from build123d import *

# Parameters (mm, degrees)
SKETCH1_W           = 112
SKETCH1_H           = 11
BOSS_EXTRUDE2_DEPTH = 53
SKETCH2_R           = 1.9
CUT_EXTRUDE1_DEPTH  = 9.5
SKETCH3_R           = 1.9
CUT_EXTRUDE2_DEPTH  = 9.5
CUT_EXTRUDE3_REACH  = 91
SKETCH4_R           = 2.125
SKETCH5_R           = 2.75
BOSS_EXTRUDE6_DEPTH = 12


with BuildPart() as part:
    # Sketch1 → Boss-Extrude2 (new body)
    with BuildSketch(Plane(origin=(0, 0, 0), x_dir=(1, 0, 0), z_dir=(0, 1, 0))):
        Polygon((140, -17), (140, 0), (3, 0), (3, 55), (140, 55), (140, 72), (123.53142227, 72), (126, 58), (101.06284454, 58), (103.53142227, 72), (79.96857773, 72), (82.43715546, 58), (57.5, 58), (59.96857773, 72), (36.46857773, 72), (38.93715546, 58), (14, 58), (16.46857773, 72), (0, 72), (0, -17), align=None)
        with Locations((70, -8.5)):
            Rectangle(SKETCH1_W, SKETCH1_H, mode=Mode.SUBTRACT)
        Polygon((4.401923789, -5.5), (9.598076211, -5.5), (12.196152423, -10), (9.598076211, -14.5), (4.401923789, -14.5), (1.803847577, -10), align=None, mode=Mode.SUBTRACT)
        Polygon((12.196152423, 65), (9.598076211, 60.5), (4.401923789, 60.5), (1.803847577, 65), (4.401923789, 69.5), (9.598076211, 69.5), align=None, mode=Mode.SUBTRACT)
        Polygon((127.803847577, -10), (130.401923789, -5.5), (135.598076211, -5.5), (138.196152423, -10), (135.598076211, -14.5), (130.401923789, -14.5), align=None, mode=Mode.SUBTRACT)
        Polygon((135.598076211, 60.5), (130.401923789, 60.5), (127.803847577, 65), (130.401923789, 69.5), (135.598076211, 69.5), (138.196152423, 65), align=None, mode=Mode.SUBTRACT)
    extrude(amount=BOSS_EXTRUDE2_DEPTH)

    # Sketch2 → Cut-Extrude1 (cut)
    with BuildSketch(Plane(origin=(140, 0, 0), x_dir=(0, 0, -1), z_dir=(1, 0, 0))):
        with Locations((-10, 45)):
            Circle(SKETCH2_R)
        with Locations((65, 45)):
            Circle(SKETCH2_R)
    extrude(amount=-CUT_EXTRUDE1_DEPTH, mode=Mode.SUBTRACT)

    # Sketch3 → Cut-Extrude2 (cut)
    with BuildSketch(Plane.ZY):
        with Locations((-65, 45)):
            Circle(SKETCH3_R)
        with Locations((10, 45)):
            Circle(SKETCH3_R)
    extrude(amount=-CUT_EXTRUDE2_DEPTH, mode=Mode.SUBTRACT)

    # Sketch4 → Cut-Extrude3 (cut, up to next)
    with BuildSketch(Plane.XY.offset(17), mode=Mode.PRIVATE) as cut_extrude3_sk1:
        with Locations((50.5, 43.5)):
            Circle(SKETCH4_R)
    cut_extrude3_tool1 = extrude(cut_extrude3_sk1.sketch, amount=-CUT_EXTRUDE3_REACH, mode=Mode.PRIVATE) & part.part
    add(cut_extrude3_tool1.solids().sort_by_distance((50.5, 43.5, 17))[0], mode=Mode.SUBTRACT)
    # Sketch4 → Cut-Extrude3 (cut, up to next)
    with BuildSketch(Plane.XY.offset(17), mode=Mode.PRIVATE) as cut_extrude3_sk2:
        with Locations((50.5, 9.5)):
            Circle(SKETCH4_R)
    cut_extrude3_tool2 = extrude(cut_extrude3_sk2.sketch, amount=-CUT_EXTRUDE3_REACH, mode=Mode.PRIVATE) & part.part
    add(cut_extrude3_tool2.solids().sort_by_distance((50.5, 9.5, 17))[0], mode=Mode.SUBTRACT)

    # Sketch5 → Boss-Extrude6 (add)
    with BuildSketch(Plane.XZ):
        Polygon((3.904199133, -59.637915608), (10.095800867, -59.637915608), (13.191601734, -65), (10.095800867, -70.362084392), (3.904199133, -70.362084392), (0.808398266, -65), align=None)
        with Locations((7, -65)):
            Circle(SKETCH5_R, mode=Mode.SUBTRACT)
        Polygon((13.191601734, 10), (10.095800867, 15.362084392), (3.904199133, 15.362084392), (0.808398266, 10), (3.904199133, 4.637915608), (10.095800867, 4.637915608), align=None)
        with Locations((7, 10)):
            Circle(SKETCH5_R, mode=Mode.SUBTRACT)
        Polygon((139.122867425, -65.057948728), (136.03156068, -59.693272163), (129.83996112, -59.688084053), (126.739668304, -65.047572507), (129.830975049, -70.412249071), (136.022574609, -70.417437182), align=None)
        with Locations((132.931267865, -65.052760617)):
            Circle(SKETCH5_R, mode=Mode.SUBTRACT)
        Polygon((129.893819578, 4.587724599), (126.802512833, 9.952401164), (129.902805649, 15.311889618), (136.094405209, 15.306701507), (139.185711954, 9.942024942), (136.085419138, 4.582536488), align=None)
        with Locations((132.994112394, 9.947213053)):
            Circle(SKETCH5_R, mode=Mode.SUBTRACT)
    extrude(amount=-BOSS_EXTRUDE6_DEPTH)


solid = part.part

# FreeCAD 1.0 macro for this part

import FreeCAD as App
import Part
import Sketcher
Q = App.Units.Quantity

doc = App.newDocument("Part")
body = doc.addObject("PartDesign::Body", "Body")

# Sketch on XZ plane
sketch1 = doc.addObject("Sketcher::SketchObject", "Sketch")
body.addObject(sketch1)
sketch1.AttachmentSupport = (doc.XZ_Plane, [""])
sketch1.MapMode = "FlatFace"
sketch1.addGeometry([
    Part.LineSegment(App.Vector(140, 17, 0), App.Vector(140, 0, 0)),  # 0
    Part.LineSegment(App.Vector(140, 0, 0), App.Vector(3, 0, 0)),  # 1
    Part.LineSegment(App.Vector(3, 0, 0), App.Vector(3, -55, 0)),  # 2
    Part.LineSegment(App.Vector(3, -55, 0), App.Vector(140, -55, 0)),  # 3
    Part.LineSegment(App.Vector(140, -55, 0), App.Vector(140, -72, 0)),  # 4
    Part.LineSegment(App.Vector(140, -72, 0), App.Vector(124, -72, 0)),  # 5
    Part.LineSegment(App.Vector(124, -72, 0), App.Vector(126, -58, 0)),  # 6
    Part.LineSegment(App.Vector(126, -58, 0), App.Vector(101, -58, 0)),  # 7
    Part.LineSegment(App.Vector(101, -58, 0), App.Vector(104, -72, 0)),  # 8
    Part.LineSegment(App.Vector(104, -72, 0), App.Vector(80, -72, 0)),  # 9
    Part.LineSegment(App.Vector(80, -72, 0), App.Vector(82, -58, 0)),  # 10
    Part.LineSegment(App.Vector(82, -58, 0), App.Vector(58, -58, 0)),  # 11
    Part.LineSegment(App.Vector(58, -58, 0), App.Vector(60, -72, 0)),  # 12
    Part.LineSegment(App.Vector(60, -72, 0), App.Vector(36, -72, 0)),  # 13
    Part.LineSegment(App.Vector(36, -72, 0), App.Vector(39, -58, 0)),  # 14
    Part.LineSegment(App.Vector(39, -58, 0), App.Vector(14, -58, 0)),  # 15
    Part.LineSegment(App.Vector(14, -58, 0), App.Vector(16, -72, 0)),  # 16
    Part.LineSegment(App.Vector(16, -72, 0), App.Vector(0, -72, 0)),  # 17
    Part.LineSegment(App.Vector(0, -72, 0), App.Vector(0, 17, 0)),  # 18
    Part.LineSegment(App.Vector(0, 17, 0), App.Vector(140, 17, 0)),  # 19
    Part.LineSegment(App.Vector(2, 10, 0), App.Vector(4, 6, 0)),  # 20
    Part.LineSegment(App.Vector(4, 6, 0), App.Vector(10, 6, 0)),  # 21
    Part.LineSegment(App.Vector(10, 6, 0), App.Vector(12, 10, 0)),  # 22
    Part.LineSegment(App.Vector(12, 10, 0), App.Vector(10, 14, 0)),  # 23
    Part.LineSegment(App.Vector(10, 14, 0), App.Vector(4, 14, 0)),  # 24
    Part.LineSegment(App.Vector(4, 14, 0), App.Vector(2, 10, 0)),  # 25
    Part.LineSegment(App.Vector(126, 14, 0), App.Vector(14, 14, 0)),  # 26
    Part.LineSegment(App.Vector(14, 14, 0), App.Vector(14, 3, 0)),  # 27
    Part.LineSegment(App.Vector(14, 3, 0), App.Vector(126, 3, 0)),  # 28
    Part.LineSegment(App.Vector(126, 3, 0), App.Vector(126, 14, 0)),  # 29
    Part.LineSegment(App.Vector(130, 14, 0), App.Vector(128, 10, 0)),  # 30
    Part.LineSegment(App.Vector(128, 10, 0), App.Vector(130, 6, 0)),  # 31
    Part.LineSegment(App.Vector(130, 6, 0), App.Vector(136, 6, 0)),  # 32
    Part.LineSegment(App.Vector(136, 6, 0), App.Vector(138, 10, 0)),  # 33
    Part.LineSegment(App.Vector(138, 10, 0), App.Vector(136, 14, 0)),  # 34
    Part.LineSegment(App.Vector(136, 14, 0), App.Vector(130, 14, 0)),  # 35
    Part.LineSegment(App.Vector(10, -70, 0), App.Vector(12, -65, 0)),  # 36
    Part.LineSegment(App.Vector(12, -65, 0), App.Vector(10, -60, 0)),  # 37
    Part.LineSegment(App.Vector(10, -60, 0), App.Vector(4, -60, 0)),  # 38
    Part.LineSegment(App.Vector(4, -60, 0), App.Vector(2, -65, 0)),  # 39
    Part.LineSegment(App.Vector(2, -65, 0), App.Vector(4, -70, 0)),  # 40
    Part.LineSegment(App.Vector(4, -70, 0), App.Vector(10, -70, 0)),  # 41
    Part.LineSegment(App.Vector(138, -65, 0), App.Vector(136, -60, 0)),  # 42
    Part.LineSegment(App.Vector(136, -60, 0), App.Vector(130, -60, 0)),  # 43
    Part.LineSegment(App.Vector(130, -60, 0), App.Vector(128, -65, 0)),  # 44
    Part.LineSegment(App.Vector(128, -65, 0), App.Vector(130, -70, 0)),  # 45
    Part.LineSegment(App.Vector(130, -70, 0), App.Vector(136, -70, 0)),  # 46
    Part.LineSegment(App.Vector(136, -70, 0), App.Vector(138, -65, 0)),  # 47
], False)
sketch1.addConstraint([
    Sketcher.Constraint("Coincident", 0, 2, 1, 1),
    Sketcher.Constraint("Coincident", 1, 2, 2, 1),
    Sketcher.Constraint("Coincident", 2, 2, 3, 1),
    Sketcher.Constraint("Coincident", 3, 2, 4, 1),
    Sketcher.Constraint("Coincident", 4, 2, 5, 1),
    Sketcher.Constraint("Coincident", 5, 2, 6, 1),
    Sketcher.Constraint("Coincident", 6, 2, 7, 1),
    Sketcher.Constraint("Coincident", 7, 2, 8, 1),
    Sketcher.Constraint("Coincident", 8, 2, 9, 1),
    Sketcher.Constraint("Coincident", 9, 2, 10, 1),
    Sketcher.Constraint("Coincident", 10, 2, 11, 1),
    Sketcher.Constraint("Coincident", 11, 2, 12, 1),
    Sketcher.Constraint("Coincident", 12, 2, 13, 1),
    Sketcher.Constraint("Coincident", 13, 2, 14, 1),
    Sketcher.Constraint("Coincident", 14, 2, 15, 1),
    Sketcher.Constraint("Coincident", 15, 2, 16, 1),
    Sketcher.Constraint("Coincident", 16, 2, 17, 1),
    Sketcher.Constraint("Coincident", 17, 2, 18, 1),
    Sketcher.Constraint("Coincident", 18, 2, 19, 1),
    Sketcher.Constraint("Coincident", 19, 2, 0, 1),
    Sketcher.Constraint("Coincident", 20, 2, 21, 1),
    Sketcher.Constraint("Coincident", 21, 2, 22, 1),
    Sketcher.Constraint("Coincident", 22, 2, 23, 1),
    Sketcher.Constraint("Coincident", 23, 2, 24, 1),
    Sketcher.Constraint("Coincident", 24, 2, 25, 1),
    Sketcher.Constraint("Coincident", 25, 2, 20, 1),
    Sketcher.Constraint("Coincident", 26, 2, 27, 1),
    Sketcher.Constraint("Coincident", 27, 2, 28, 1),
    Sketcher.Constraint("Coincident", 28, 2, 29, 1),
    Sketcher.Constraint("Coincident", 29, 2, 26, 1),
    Sketcher.Constraint("Coincident", 30, 2, 31, 1),
    Sketcher.Constraint("Coincident", 31, 2, 32, 1),
    Sketcher.Constraint("Coincident", 32, 2, 33, 1),
    Sketcher.Constraint("Coincident", 33, 2, 34, 1),
    Sketcher.Constraint("Coincident", 34, 2, 35, 1),
    Sketcher.Constraint("Coincident", 35, 2, 30, 1),
    Sketcher.Constraint("Coincident", 36, 2, 37, 1),
    Sketcher.Constraint("Coincident", 37, 2, 38, 1),
    Sketcher.Constraint("Coincident", 38, 2, 39, 1),
    Sketcher.Constraint("Coincident", 39, 2, 40, 1),
    Sketcher.Constraint("Coincident", 40, 2, 41, 1),
    Sketcher.Constraint("Coincident", 41, 2, 36, 1),
    Sketcher.Constraint("Coincident", 42, 2, 43, 1),
    Sketcher.Constraint("Coincident", 43, 2, 44, 1),
    Sketcher.Constraint("Coincident", 44, 2, 45, 1),
    Sketcher.Constraint("Coincident", 45, 2, 46, 1),
    Sketcher.Constraint("Coincident", 46, 2, 47, 1),
    Sketcher.Constraint("Coincident", 47, 2, 42, 1),
    Sketcher.Constraint("Vertical", 0),
    Sketcher.Constraint("Horizontal", 1),
    Sketcher.Constraint("Vertical", 2),
    Sketcher.Constraint("Horizontal", 3),
    Sketcher.Constraint("Vertical", 4),
    Sketcher.Constraint("Horizontal", 5),
    Sketcher.Constraint("Horizontal", 7),
    Sketcher.Constraint("Horizontal", 9),
    Sketcher.Constraint("Horizontal", 11),
    Sketcher.Constraint("Horizontal", 13),
    Sketcher.Constraint("Horizontal", 15),
    Sketcher.Constraint("Horizontal", 17),
    Sketcher.Constraint("Vertical", 18),
    Sketcher.Constraint("Horizontal", 19),
    Sketcher.Constraint("Horizontal", 21),
    Sketcher.Constraint("Horizontal", 24),
    Sketcher.Constraint("Horizontal", 26),
    Sketcher.Constraint("Vertical", 27),
    Sketcher.Constraint("Horizontal", 28),
    Sketcher.Constraint("Vertical", 29),
    Sketcher.Constraint("Horizontal", 32),
    Sketcher.Constraint("Horizontal", 35),
    Sketcher.Constraint("Horizontal", 38),
    Sketcher.Constraint("Horizontal", 41),
    Sketcher.Constraint("Horizontal", 43),
    Sketcher.Constraint("Horizontal", 46),
    Sketcher.Constraint("PointOnObject", 0, 2, -1),
    Sketcher.Constraint("PointOnObject", 17, 2, -2),
    Sketcher.Constraint("Parallel", 6, 10),
    Sketcher.Constraint("Parallel", 8, 12),
    Sketcher.Constraint("Parallel", 10, 14),
    Sketcher.Constraint("Parallel", 12, 16),
    Sketcher.Constraint("Parallel", 20, 23),
    Sketcher.Constraint("Parallel", 22, 25),
    Sketcher.Constraint("Parallel", 25, 30),
    Sketcher.Constraint("Parallel", 23, 31),
    Sketcher.Constraint("Parallel", 30, 33),
    Sketcher.Constraint("Parallel", 31, 34),
    Sketcher.Constraint("Parallel", 33, 36),
    Sketcher.Constraint("Parallel", 34, 37),
    Sketcher.Constraint("Parallel", 36, 39),
    Sketcher.Constraint("Parallel", 37, 40),
    Sketcher.Constraint("Parallel", 40, 42),
    Sketcher.Constraint("Parallel", 39, 44),
    Sketcher.Constraint("Parallel", 42, 45),
    Sketcher.Constraint("Parallel", 44, 47),
    Sketcher.Constraint("Horizontal", 5, 2, 8, 2),
    Sketcher.Constraint("Horizontal", 7, 2, 10, 2),
    Sketcher.Constraint("Horizontal", 9, 2, 12, 2),
    Sketcher.Constraint("Horizontal", 11, 2, 14, 2),
    Sketcher.Constraint("Horizontal", 13, 2, 16, 2),
    Sketcher.Constraint("Horizontal", 22, 2, 25, 2),
    Sketcher.Constraint("Horizontal", 25, 2, 30, 2),
    Sketcher.Constraint("Horizontal", 21, 2, 31, 2),
    Sketcher.Constraint("Horizontal", 30, 2, 33, 2),
    Sketcher.Constraint("Horizontal", 24, 2, 34, 2),
    Sketcher.Constraint("Horizontal", 36, 2, 39, 2),
    Sketcher.Constraint("Horizontal", 38, 2, 42, 2),
    Sketcher.Constraint("Horizontal", 39, 2, 44, 2),
    Sketcher.Constraint("Horizontal", 41, 2, 45, 2),
    Sketcher.Constraint("Horizontal", 44, 2, 47, 2),
    Sketcher.Constraint("Vertical", 0, 2, 3, 2),
    Sketcher.Constraint("Vertical", 21, 2, 23, 2),
    Sketcher.Constraint("Vertical", 20, 2, 24, 2),
    Sketcher.Constraint("Vertical", 15, 2, 26, 2),
    Sketcher.Constraint("Vertical", 6, 2, 28, 2),
    Sketcher.Constraint("Vertical", 22, 2, 36, 2),
    Sketcher.Constraint("Vertical", 23, 2, 37, 2),
    Sketcher.Constraint("Vertical", 24, 2, 38, 2),
    Sketcher.Constraint("Vertical", 38, 2, 40, 2),
    Sketcher.Constraint("Vertical", 34, 2, 42, 2),
    Sketcher.Constraint("Vertical", 35, 2, 43, 2),
    Sketcher.Constraint("Equal", 7, 11),
    Sketcher.Constraint("Equal", 11, 15),
    Sketcher.Constraint("Equal", 5, 17),
    Sketcher.Constraint("Equal", 24, 32),
    Sketcher.Constraint("Equal", 0, 4),
    Sketcher.Constraint("Equal", 6, 8),
    Sketcher.Constraint("DistanceX", 1, 2, 1, 1, 137.0),
    Sketcher.Constraint("DistanceX", 19, 1, 19, 2, 140.0),
    Sketcher.Constraint("DistanceX", 26, 2, 26, 1, 112.0),
    Sketcher.Constraint("DistanceY", 0, 2, 0, 1, 17.0),
    Sketcher.Constraint("DistanceY", 2, 2, 2, 1, 55.0),
    Sketcher.Constraint("DistanceY", 27, 2, 27, 1, 11.0),
    Sketcher.Constraint("Angle", 6, Q("80 deg")),
    Sketcher.Constraint("Angle", 20, Q("-60 deg")),
    Sketcher.Constraint("DistanceX", 13, 2, 13, 1, 23.5),
    Sketcher.Constraint("DistanceY", 6, 2, -1, 1, 58.0),
    Sketcher.Constraint("DistanceY", -1, 1, 22, 2, 10.0),
    Sketcher.Constraint("DistanceY", -1, 1, 26, 2, 14.0),
    Sketcher.Constraint("DistanceY", 36, 2, -1, 1, 65.0),
    Sketcher.Constraint("DistanceX", 8, 2, 5, 2, 20.0),
    Sketcher.Constraint("DistanceY", 21, 2, 23, 2, 9.0),
    Sketcher.Constraint("DistanceX", 37, 2, 16, 2, 6.870502),
    Sketcher.Constraint("DistanceX", 5, 2, 43, 2, 6.870502),
    Sketcher.Constraint("DistanceX", 21, 1, 21, 2, 5.196152),
])
pad1 = doc.addObject("PartDesign::Pad", "Pad")
body.addObject(pad1)
pad1.Profile = sketch1
pad1.Length = 53
pad1.Reversed = True

# Sketch on YZ plane
sketch2 = doc.addObject("Sketcher::SketchObject", "Sketch001")
body.addObject(sketch2)
sketch2.AttachmentSupport = (doc.YZ_Plane, [""])
sketch2.MapMode = "FlatFace"
sketch2.AttachmentOffset = App.Placement(App.Vector(0, 0, 140), App.Rotation())
sketch2.addGeometry([
    Part.Circle(App.Vector(45, 10, 0), App.Vector(0, 0, 1), 1.9),
    Part.Circle(App.Vector(45, -65, 0), App.Vector(0, 0, 1), 1.9),
], False)
sketch2.addConstraint([
    Sketcher.Constraint("Equal", 0, 1),
    Sketcher.Constraint("Vertical", 0, 3, 1, 3),
    Sketcher.Constraint("Diameter", 0, 3.8),
    Sketcher.Constraint("DistanceX", -1, 1, 0, 3, 45.0),
    Sketcher.Constraint("DistanceY", -1, 1, 0, 3, 10.0),
    Sketcher.Constraint("DistanceY", 1, 3, -1, 1, 65.0),
])
pocket1 = doc.addObject("PartDesign::Pocket", "Pocket")
body.addObject(pocket1)
pocket1.Profile = sketch2
pocket1.Length = 9.5

# Sketch on YZ plane
sketch3 = doc.addObject("Sketcher::SketchObject", "Sketch002")
body.addObject(sketch3)
sketch3.AttachmentSupport = (doc.YZ_Plane, [""])
sketch3.MapMode = "FlatFace"
sketch3.addGeometry([
    Part.Circle(App.Vector(45, -65, 0), App.Vector(0, 0, 1), 1.9),
    Part.Circle(App.Vector(45, 10, 0), App.Vector(0, 0, 1), 1.9),
], False)
sketch3.addConstraint([
    Sketcher.Constraint("Equal", 0, 1),
    Sketcher.Constraint("Vertical", 0, 3, 1, 3),
    Sketcher.Constraint("Diameter", 0, 3.8),
    Sketcher.Constraint("DistanceX", -1, 1, 0, 3, 45.0),
    Sketcher.Constraint("DistanceY", 0, 3, -1, 1, 65.0),
    Sketcher.Constraint("DistanceY", -1, 1, 1, 3, 10.0),
])
pocket2 = doc.addObject("PartDesign::Pocket", "Pocket001")
body.addObject(pocket2)
pocket2.Profile = sketch3
pocket2.Length = 9.5
pocket2.Reversed = True

# Sketch on XY plane
sketch4 = doc.addObject("Sketcher::SketchObject", "Sketch003")
body.addObject(sketch4)
sketch4.AttachmentSupport = (doc.XY_Plane, [""])
sketch4.MapMode = "FlatFace"
sketch4.AttachmentOffset = App.Placement(App.Vector(0, 0, 17), App.Rotation())
sketch4.addGeometry(Part.Circle(App.Vector(50.5, 43.5, 0), App.Vector(0, 0, 1), 2.1), False)
sketch4.addConstraint([
    Sketcher.Constraint("Diameter", 0, 4.25),
    Sketcher.Constraint("DistanceX", -1, 1, 0, 3, 50.5),
    Sketcher.Constraint("DistanceY", -1, 1, 0, 3, 43.5),
])
pocket3 = doc.addObject("PartDesign::Pocket", "Pocket002")
body.addObject(pocket3)
pocket3.Profile = sketch4
pocket3.Type = "UpToFirst"

# Sketch on XY plane
sketch5 = doc.addObject("Sketcher::SketchObject", "Sketch004")
body.addObject(sketch5)
sketch5.AttachmentSupport = (doc.XY_Plane, [""])
sketch5.MapMode = "FlatFace"
sketch5.AttachmentOffset = App.Placement(App.Vector(0, 0, 17), App.Rotation())
sketch5.addGeometry(Part.Circle(App.Vector(50.5, 9.5, 0), App.Vector(0, 0, 1), 2.1), False)
sketch5.addConstraint([
    Sketcher.Constraint("Diameter", 0, 4.25),
    Sketcher.Constraint("DistanceX", -1, 1, 0, 3, 50.5),
    Sketcher.Constraint("DistanceY", -1, 1, 0, 3, 9.5),
])
pocket4 = doc.addObject("PartDesign::Pocket", "Pocket003")
body.addObject(pocket4)
pocket4.Profile = sketch5
pocket4.Type = "UpToFirst"

# Sketch on XZ plane
sketch6 = doc.addObject("Sketcher::SketchObject", "Sketch005")
body.addObject(sketch6)
sketch6.AttachmentSupport = (doc.XZ_Plane, [""])
sketch6.MapMode = "FlatFace"
sketch6.addGeometry([
    Part.LineSegment(App.Vector(10.1, -59.6, 0), App.Vector(3.9, -59.6, 0)),  # 0
    Part.LineSegment(App.Vector(3.9, -59.6, 0), App.Vector(0.8, -65, 0)),  # 1
    Part.LineSegment(App.Vector(0.8, -65, 0), App.Vector(3.9, -70.4, 0)),  # 2
    Part.LineSegment(App.Vector(3.9, -70.4, 0), App.Vector(10.1, -70.4, 0)),  # 3
    Part.LineSegment(App.Vector(10.1, -70.4, 0), App.Vector(13.2, -65, 0)),  # 4
    Part.LineSegment(App.Vector(13.2, -65, 0), App.Vector(10.1, -59.6, 0)),  # 5
    Part.Circle(App.Vector(7, -65, 0), App.Vector(0, 0, 1), 2.8),  # 6
    Part.LineSegment(App.Vector(13.2, 10, 0), App.Vector(10.1, 15.4, 0)),  # 7
    Part.LineSegment(App.Vector(10.1, 15.4, 0), App.Vector(3.9, 15.4, 0)),  # 8
    Part.LineSegment(App.Vector(3.9, 15.4, 0), App.Vector(0.8, 10, 0)),  # 9
    Part.LineSegment(App.Vector(0.8, 10, 0), App.Vector(3.9, 4.6, 0)),  # 10
    Part.LineSegment(App.Vector(3.9, 4.6, 0), App.Vector(10.1, 4.6, 0)),  # 11
    Part.LineSegment(App.Vector(10.1, 4.6, 0), App.Vector(13.2, 10, 0)),  # 12
    Part.Circle(App.Vector(7, 10, 0), App.Vector(0, 0, 1), 2.8),  # 13
    Part.LineSegment(App.Vector(139.1, -65.1, 0), App.Vector(136, -59.7, 0)),  # 14
    Part.LineSegment(App.Vector(136, -59.7, 0), App.Vector(129.8, -59.7, 0)),  # 15
    Part.LineSegment(App.Vector(129.8, -59.7, 0), App.Vector(126.7, -65, 0)),  # 16
    Part.LineSegment(App.Vector(126.7, -65, 0), App.Vector(129.8, -70.4, 0)),  # 17
    Part.LineSegment(App.Vector(129.8, -70.4, 0), App.Vector(136, -70.4, 0)),  # 18
    Part.LineSegment(App.Vector(136, -70.4, 0), App.Vector(139.1, -65.1, 0)),  # 19
    Part.Circle(App.Vector(132.9, -65.1, 0), App.Vector(0, 0, 1), 2.8),  # 20
    Part.LineSegment(App.Vector(126.8, 10, 0), App.Vector(129.9, 4.6, 0)),  # 21
    Part.LineSegment(App.Vector(129.9, 4.6, 0), App.Vector(136.1, 4.6, 0)),  # 22
    Part.LineSegment(App.Vector(136.1, 4.6, 0), App.Vector(139.2, 9.9, 0)),  # 23
    Part.LineSegment(App.Vector(139.2, 9.9, 0), App.Vector(136.1, 15.3, 0)),  # 24
    Part.LineSegment(App.Vector(136.1, 15.3, 0), App.Vector(129.9, 15.3, 0)),  # 25
    Part.LineSegment(App.Vector(129.9, 15.3, 0), App.Vector(126.8, 10, 0)),  # 26
    Part.Circle(App.Vector(133, 9.9, 0), App.Vector(0, 0, 1), 2.8),  # 27
], False)
sketch6.addConstraint([
    Sketcher.Constraint("Coincident", 0, 2, 1, 1),
    Sketcher.Constraint("Coincident", 1, 2, 2, 1),
    Sketcher.Constraint("Coincident", 2, 2, 3, 1),
    Sketcher.Constraint("Coincident", 3, 2, 4, 1),
    Sketcher.Constraint("Coincident", 4, 2, 5, 1),
    Sketcher.Constraint("Coincident", 5, 2, 0, 1),
    Sketcher.Constraint("Coincident", 7, 2, 8, 1),
    Sketcher.Constraint("Coincident", 8, 2, 9, 1),
    Sketcher.Constraint("Coincident", 9, 2, 10, 1),
    Sketcher.Constraint("Coincident", 10, 2, 11, 1),
    Sketcher.Constraint("Coincident", 11, 2, 12, 1),
    Sketcher.Constraint("Coincident", 12, 2, 7, 1),
    Sketcher.Constraint("Coincident", 14, 2, 15, 1),
    Sketcher.Constraint("Coincident", 15, 2, 16, 1),
    Sketcher.Constraint("Coincident", 16, 2, 17, 1),
    Sketcher.Constraint("Coincident", 17, 2, 18, 1),
    Sketcher.Constraint("Coincident", 18, 2, 19, 1),
    Sketcher.Constraint("Coincident", 19, 2, 14, 1),
    Sketcher.Constraint("Coincident", 21, 2, 22, 1),
    Sketcher.Constraint("Coincident", 22, 2, 23, 1),
    Sketcher.Constraint("Coincident", 23, 2, 24, 1),
    Sketcher.Constraint("Coincident", 24, 2, 25, 1),
    Sketcher.Constraint("Coincident", 25, 2, 26, 1),
    Sketcher.Constraint("Coincident", 26, 2, 21, 1),
    Sketcher.Constraint("Horizontal", 0),
    Sketcher.Constraint("Horizontal", 3),
    Sketcher.Constraint("Horizontal", 8),
    Sketcher.Constraint("Horizontal", 11),
    Sketcher.Constraint("Equal", 6, 13),
    Sketcher.Constraint("Equal", 13, 20),
    Sketcher.Constraint("Equal", 20, 27),
    Sketcher.Constraint("Parallel", 1, 4),
    Sketcher.Constraint("Parallel", 2, 5),
    Sketcher.Constraint("Parallel", 5, 7),
    Sketcher.Constraint("Parallel", 4, 9),
    Sketcher.Constraint("Parallel", 7, 10),
    Sketcher.Constraint("Parallel", 9, 12),
    Sketcher.Constraint("Parallel", 14, 17),
    Sketcher.Constraint("Parallel", 15, 18),
    Sketcher.Constraint("Parallel", 16, 19),
    Sketcher.Constraint("Parallel", 17, 21),
    Sketcher.Constraint("Parallel", 18, 22),
    Sketcher.Constraint("Parallel", 19, 23),
    Sketcher.Constraint("Parallel", 21, 24),
    Sketcher.Constraint("Parallel", 22, 25),
    Sketcher.Constraint("Parallel", 23, 26),
    Sketcher.Constraint("Horizontal", 6, 3, 1, 2),
    Sketcher.Constraint("Horizontal", 1, 2, 4, 2),
    Sketcher.Constraint("Horizontal", 13, 3, 9, 2),
    Sketcher.Constraint("Horizontal", 9, 2, 12, 2),
    Sketcher.Constraint("Vertical", 6, 3, 13, 3),
    Sketcher.Constraint("Vertical", 0, 2, 2, 2),
    Sketcher.Constraint("Vertical", 3, 2, 5, 2),
    Sketcher.Constraint("Vertical", 5, 2, 7, 2),
    Sketcher.Constraint("Vertical", 2, 2, 8, 2),
    Sketcher.Constraint("Vertical", 1, 2, 9, 2),
    Sketcher.Constraint("Vertical", 8, 2, 10, 2),
    Sketcher.Constraint("Equal", 12, 14),
    Sketcher.Constraint("Equal", 14, 15),
    Sketcher.Constraint("Equal", 15, 16),
    Sketcher.Constraint("Equal", 16, 17),
    Sketcher.Constraint("Equal", 19, 21),
    Sketcher.Constraint("Equal", 21, 22),
    Sketcher.Constraint("Equal", 22, 23),
    Sketcher.Constraint("Equal", 23, 24),
    Sketcher.Constraint("Diameter", 6, 5.5),
    Sketcher.Constraint("Angle", 1, Q("-120 deg")),
    Sketcher.Constraint("DistanceX", -1, 1, 6, 3, 7.0),
    Sketcher.Constraint("DistanceY", 6, 3, -1, 1, 65.0),
    Sketcher.Constraint("DistanceY", -1, 1, 13, 3, 10.0),
    Sketcher.Constraint("DistanceX", 0, 2, 0, 1, 6.191602),
    Sketcher.Constraint("Distance", 1, 6.191602),
    Sketcher.Constraint("DistanceX", -1, 1, 0, 2, 3.904199),
    Sketcher.Constraint("DistanceY", -1, 1, 24, 2, 15.306702),
    Sketcher.Constraint("DistanceY", -1, 1, 26, 2, 9.952401),
    Sketcher.Constraint("DistanceX", 16, 2, 20, 3, 6.1916),
    Sketcher.Constraint("DistanceX", 20, 3, 19, 2, 6.1916),
    Sketcher.Constraint("DistanceX", 27, 3, 23, 2, 6.1916),
    Sketcher.Constraint("DistanceY", 20, 3, -1, 1, 65.052761),
    Sketcher.Constraint("DistanceX", -1, 1, 14, 2, 136.031561),
    Sketcher.Constraint("DistanceX", -1, 1, 16, 2, 126.739668),
    Sketcher.Constraint("DistanceY", 17, 2, -1, 1, 70.412249),
    Sketcher.Constraint("DistanceX", -1, 1, 21, 2, 129.89382),
    Sketcher.Constraint("DistanceY", 0, 2, 27, 3, 69.585129),
])
pad2 = doc.addObject("PartDesign::Pad", "Pad001")
body.addObject(pad2)
pad2.Profile = sketch6
pad2.Length = 12
pad2.Reversed = True

doc.recompute()
